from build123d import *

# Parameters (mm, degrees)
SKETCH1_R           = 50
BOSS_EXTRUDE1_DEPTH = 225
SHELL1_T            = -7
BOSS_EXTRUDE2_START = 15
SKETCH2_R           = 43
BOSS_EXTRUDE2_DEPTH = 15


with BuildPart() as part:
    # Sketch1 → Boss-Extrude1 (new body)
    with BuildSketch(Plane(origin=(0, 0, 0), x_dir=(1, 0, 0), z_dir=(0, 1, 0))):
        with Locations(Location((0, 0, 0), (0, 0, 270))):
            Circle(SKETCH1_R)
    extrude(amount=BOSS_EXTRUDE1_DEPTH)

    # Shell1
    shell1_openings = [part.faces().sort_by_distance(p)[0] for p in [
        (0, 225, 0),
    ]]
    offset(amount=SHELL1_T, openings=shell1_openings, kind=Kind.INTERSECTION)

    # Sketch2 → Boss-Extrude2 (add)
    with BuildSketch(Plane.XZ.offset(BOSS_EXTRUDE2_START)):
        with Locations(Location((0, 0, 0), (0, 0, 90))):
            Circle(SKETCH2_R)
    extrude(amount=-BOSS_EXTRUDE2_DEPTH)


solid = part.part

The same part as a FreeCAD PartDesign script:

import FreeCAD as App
import Part
import Sketcher
Q = App.Units.Quantity


def faces_at(feature, points):
    """Names of the faces that lie closest to the given points."""
    faces = feature.Shape.Faces
    near = lambda p: min(range(len(faces)), key=lambda i: faces[i].distToShape(Part.Vertex(*p))[0])
    return sorted({f"Face{near(p) + 1}" for p in points})

doc = App.newDocument("Part")
body = doc.addObject("PartDesign::Body", "Body")

# Sketch on XZ plane
sketch1 = body.newObject("Sketcher::SketchObject", "Sketch")
sketch1.AttachmentSupport = (doc.getObject("XZ_Plane"), [""])
sketch1.MapMode = "FlatFace"
sketch1.addGeometry(Part.Circle(App.Vector(0, 0, 0), App.Vector(0, 0, 1), 50), False)
sketch1.addConstraint([
    Sketcher.Constraint("Coincident", 0, 3, -1, 1),
    Sketcher.Constraint("Diameter", 0, Q("100 mm")),
])
pad1 = body.newObject("PartDesign::Pad", "Pad")
pad1.Profile = sketch1
pad1.Length = 225
pad1.Reversed = True
doc.recompute()

thickness = body.newObject("PartDesign::Thickness", "Thickness")
thickness.Base = (pad1, faces_at(pad1, [(0, 225, 0)]))
thickness.Value = 7
thickness.Reversed = True
thickness.Join = "Intersection"

# Sketch on XZ plane
sketch2 = body.newObject("Sketcher::SketchObject", "Sketch001")
sketch2.AttachmentSupport = (doc.getObject("XZ_Plane"), [""])
sketch2.MapMode = "FlatFace"
sketch2.AttachmentOffset = App.Placement(App.Vector(0, 0, 15), App.Rotation())
sketch2.addGeometry(Part.Circle(App.Vector(0, 0, 0), App.Vector(0, 0, 1), 43), False)
sketch2.addConstraint([
    Sketcher.Constraint("Coincident", 0, 3, -1, 1),
    Sketcher.Constraint("Diameter", 0, Q("86 mm")),
])
pad2 = body.newObject("PartDesign::Pad", "Pad001")
pad2.Profile = sketch2
pad2.Length = 15
pad2.Reversed = True

doc.recompute()
